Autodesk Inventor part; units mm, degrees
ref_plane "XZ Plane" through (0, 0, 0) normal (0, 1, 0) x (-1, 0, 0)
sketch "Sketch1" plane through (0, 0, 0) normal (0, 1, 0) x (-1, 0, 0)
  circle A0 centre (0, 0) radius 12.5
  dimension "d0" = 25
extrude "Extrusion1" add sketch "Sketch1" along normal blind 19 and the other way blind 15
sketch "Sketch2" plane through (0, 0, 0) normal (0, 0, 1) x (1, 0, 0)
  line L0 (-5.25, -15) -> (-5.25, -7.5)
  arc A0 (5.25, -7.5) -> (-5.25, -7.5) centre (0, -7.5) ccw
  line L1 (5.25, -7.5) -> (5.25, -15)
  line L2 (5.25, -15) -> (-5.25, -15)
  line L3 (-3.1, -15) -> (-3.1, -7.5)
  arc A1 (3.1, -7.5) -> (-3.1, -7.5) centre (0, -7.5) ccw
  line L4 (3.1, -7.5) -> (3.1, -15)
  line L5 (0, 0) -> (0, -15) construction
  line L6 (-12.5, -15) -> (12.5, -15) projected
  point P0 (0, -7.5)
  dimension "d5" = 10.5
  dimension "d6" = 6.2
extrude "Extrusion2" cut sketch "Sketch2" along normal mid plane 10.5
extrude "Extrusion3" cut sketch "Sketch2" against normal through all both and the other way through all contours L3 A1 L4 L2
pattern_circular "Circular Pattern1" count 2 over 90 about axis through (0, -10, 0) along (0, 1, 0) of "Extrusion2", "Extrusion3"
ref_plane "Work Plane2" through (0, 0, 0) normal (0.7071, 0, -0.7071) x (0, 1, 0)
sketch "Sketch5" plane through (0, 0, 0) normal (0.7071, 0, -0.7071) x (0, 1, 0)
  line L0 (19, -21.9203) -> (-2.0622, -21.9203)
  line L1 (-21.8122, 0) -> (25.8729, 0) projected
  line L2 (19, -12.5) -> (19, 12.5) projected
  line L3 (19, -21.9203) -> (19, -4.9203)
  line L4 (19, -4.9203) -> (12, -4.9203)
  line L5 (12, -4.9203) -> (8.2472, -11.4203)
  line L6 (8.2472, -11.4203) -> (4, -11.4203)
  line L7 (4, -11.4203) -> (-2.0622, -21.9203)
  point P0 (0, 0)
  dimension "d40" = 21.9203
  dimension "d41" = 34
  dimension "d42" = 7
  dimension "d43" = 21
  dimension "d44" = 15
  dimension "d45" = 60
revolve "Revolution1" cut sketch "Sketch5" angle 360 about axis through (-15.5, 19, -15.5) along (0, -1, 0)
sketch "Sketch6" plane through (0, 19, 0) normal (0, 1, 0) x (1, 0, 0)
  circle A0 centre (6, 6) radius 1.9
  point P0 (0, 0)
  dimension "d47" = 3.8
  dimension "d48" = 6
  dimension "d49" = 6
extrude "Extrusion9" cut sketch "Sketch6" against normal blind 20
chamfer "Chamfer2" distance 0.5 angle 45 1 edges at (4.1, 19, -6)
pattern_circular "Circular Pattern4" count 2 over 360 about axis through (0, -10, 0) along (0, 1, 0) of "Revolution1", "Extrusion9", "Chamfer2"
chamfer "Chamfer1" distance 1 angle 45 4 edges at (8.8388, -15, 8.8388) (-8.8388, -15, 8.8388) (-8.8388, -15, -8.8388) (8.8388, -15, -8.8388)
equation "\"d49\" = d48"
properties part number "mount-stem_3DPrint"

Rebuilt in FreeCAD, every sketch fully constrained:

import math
import FreeCAD as App
import Part
import Sketcher
from FreeCAD import Vector
Q = App.Units.Quantity


def edges_at(feature, points):
    """Names of the edges that pass closest to the given points."""
    edges = feature.Shape.Edges
    near = lambda p: min(range(len(edges)), key=lambda i: edges[i].distToShape(Part.Vertex(*p))[0])
    return sorted({f"Edge{near(p) + 1}" for p in points})

doc = App.newDocument("Part")
body = doc.addObject("PartDesign::Body", "Body")

# Sketch on XZ plane
sketch1 = body.newObject("Sketcher::SketchObject", "Sketch")
sketch1.AttachmentSupport = (doc.getObject("XZ_Plane"), [""])
sketch1.MapMode = "FlatFace"
sketch1.addGeometry(Part.Circle(Vector(0, 0, 0), Vector(0, 0, 1), 12), False)
sketch1.addConstraint([
    Sketcher.Constraint("Coincident", 0, 3, -1, 1),
    Sketcher.Constraint("Diameter", 0, 25.0),
])
pad1 = body.newObject("PartDesign::Pad", "Pad")
pad1.Profile = sketch1
pad1.Type = "TwoLengths"
pad1.Length = 19
pad1.Length2 = 15
pad1.Reversed = True

# Sketch on XY plane
sketch2 = body.newObject("Sketcher::SketchObject", "Sketch001")
sketch2.AttachmentSupport = (doc.getObject("XY_Plane"), [""])
sketch2.MapMode = "FlatFace"
sketch2.addGeometry([
    Part.LineSegment(Vector(-5, -8, 0), Vector(-5, -15, 0)),
    Part.LineSegment(Vector(-5, -15, 0), Vector(5, -15, 0)),
    Part.LineSegment(Vector(5, -15, 0), Vector(5, -8, 0)),
    Part.ArcOfCircle(Part.Circle(Vector(0, -8, 0), Vector(0, 0, 1), 5), math.radians(0), math.radians(180)),
], False)
sketch2.addConstraint([
    Sketcher.Constraint("Coincident", 0, 2, 1, 1),
    Sketcher.Constraint("Coincident", 1, 2, 2, 1),
    Sketcher.Constraint("Tangent", 2, 2, 3, 1),
    Sketcher.Constraint("Tangent", 3, 2, 0, 1),
    Sketcher.Constraint("Vertical", 0),
    Sketcher.Constraint("Horizontal", 1),
    Sketcher.Constraint("Vertical", 2),
    Sketcher.Constraint("PointOnObject", 3, 3, -2),
    Sketcher.Constraint("Radius", 3, 5.25),
    Sketcher.Constraint("DistanceY", 0, 2, 0, 1, 7.5),
    Sketcher.Constraint("DistanceY", 0, 2, -1, 1, 15.0),
])
pocket1 = body.newObject("PartDesign::Pocket", "Pocket")
pocket1.Profile = sketch2
pocket1.Length = 10.5
pocket1.Midplane = True

# Sketch on XY plane
sketch3 = body.newObject("Sketcher::SketchObject", "Sketch002")
sketch3.AttachmentSupport = (doc.getObject("XY_Plane"), [""])
sketch3.MapMode = "FlatFace"
sketch3.addGeometry([
    Part.LineSegment(Vector(-3.1, -7.5, 0), Vector(-3.1, -15, 0)),
    Part.LineSegment(Vector(-3.1, -15, 0), Vector(3.1, -15, 0)),
    Part.LineSegment(Vector(3.1, -15, 0), Vector(3.1, -7.5, 0)),
    Part.ArcOfCircle(Part.Circle(Vector(0, -7.5, 0), Vector(0, 0, 1), 3.1), math.radians(0), math.radians(180)),
], False)
sketch3.addConstraint([
    Sketcher.Constraint("Coincident", 0, 2, 1, 1),
    Sketcher.Constraint("Coincident", 1, 2, 2, 1),
    Sketcher.Constraint("Tangent", 2, 2, 3, 1),
    Sketcher.Constraint("Tangent", 3, 2, 0, 1),
    Sketcher.Constraint("Vertical", 0),
    Sketcher.Constraint("Horizontal", 1),
    Sketcher.Constraint("Vertical", 2),
    Sketcher.Constraint("PointOnObject", 3, 3, -2),
    Sketcher.Constraint("Radius", 3, 3.1),
    Sketcher.Constraint("DistanceY", 0, 2, 0, 1, 7.5),
    Sketcher.Constraint("DistanceY", 0, 2, -1, 1, 15.0),
])
pocket2 = body.newObject("PartDesign::Pocket", "Pocket001")
pocket2.Profile = sketch3
pocket2.Type = "ThroughAll"
pocket2.Midplane = True
doc.recompute()

polarpattern = body.newObject("PartDesign::PolarPattern", "PolarPattern")
polarpattern.Originals = [pocket1, pocket2]
polarpattern.Axis = (doc.getObject("Y_Axis"), [""])
polarpattern.Angle = 90
polarpattern.Occurrences = 2
body.Tip = polarpattern

# Sketch on an angled plane
sketch4 = body.newObject("Sketcher::SketchObject", "Sketch003")
sketch4.Placement = App.Placement(Vector(0, 0, 0), App.Rotation(Vector(0, 1, 0), Vector(0.707106781, 0, 0.707106781), Vector(0.707106781, 0, -0.707106781), "ZXY"))
sketch4.addGeometry([
    Part.LineSegment(Vector(-2.1, -21.9, 0), Vector(19, -21.9, 0)),  # 0
    Part.LineSegment(Vector(19, -21.9, 0), Vector(19, -4.9, 0)),  # 1
    Part.LineSegment(Vector(19, -4.9, 0), Vector(12, -4.9, 0)),  # 2
    Part.LineSegment(Vector(12, -4.9, 0), Vector(8.2, -11.4, 0)),  # 3
    Part.LineSegment(Vector(8.2, -11.4, 0), Vector(4, -11.4, 0)),  # 4
    Part.LineSegment(Vector(4, -11.4, 0), Vector(-2.1, -21.9, 0)),  # 5
], False)
sketch4.addGeometry(Part.LineSegment(Vector(19, -21.9, 0), Vector(-2.1, -21.9, 0)), True)  # axis
sketch4.addConstraint([
    Sketcher.Constraint("Coincident", 0, 2, 1, 1),
    Sketcher.Constraint("Coincident", 1, 2, 2, 1),
    Sketcher.Constraint("Coincident", 2, 2, 3, 1),
    Sketcher.Constraint("Coincident", 3, 2, 4, 1),
    Sketcher.Constraint("Coincident", 4, 2, 5, 1),
    Sketcher.Constraint("Coincident", 5, 2, 0, 1),
    Sketcher.Constraint("Horizontal", 0),
    Sketcher.Constraint("Vertical", 1),
    Sketcher.Constraint("Horizontal", 2),
    Sketcher.Constraint("Horizontal", 4),
    Sketcher.Constraint("Horizontal", 6),
    Sketcher.Constraint("Coincident", 6, 1, 0, 2),
    Sketcher.Constraint("Parallel", 3, 5),
    Sketcher.Constraint("Equal", 0, 6),
    Sketcher.Constraint("DistanceX", 2, 2, 2, 1, 7.0),
    Sketcher.Constraint("DistanceX", 4, 2, 1, 2, 15.0),
    Sketcher.Constraint("DistanceY", 1, 1, 1, 2, 17.0),
    Sketcher.Constraint("Angle", 3, Q("-120.0002 deg")),
    Sketcher.Constraint("DistanceX", -1, 1, 0, 2, 19.0),
    Sketcher.Constraint("DistanceY", 0, 2, -1, 1, 21.9203),
    Sketcher.Constraint("DistanceY", 3, 2, 2, 2, 6.5),
])
groove = body.newObject("PartDesign::Groove", "Groove")
groove.Profile = sketch4
groove.ReferenceAxis = (sketch4, ["Axis0"])
groove.Angle = 360

# Sketch on XZ plane
sketch5 = body.newObject("Sketcher::SketchObject", "Sketch004")
sketch5.AttachmentSupport = (doc.getObject("XZ_Plane"), [""])
sketch5.MapMode = "FlatFace"
sketch5.AttachmentOffset = App.Placement(Vector(0, 0, -19), App.Rotation())
sketch5.addGeometry(Part.Circle(Vector(6, -6, 0), Vector(0, 0, 1), 1.9), False)
sketch5.addConstraint([
    Sketcher.Constraint("Diameter", 0, 3.8),
    Sketcher.Constraint("DistanceX", -1, 1, 0, 3, 6.0),
    Sketcher.Constraint("DistanceY", 0, 3, -1, 1, 6.0),
])
pocket3 = body.newObject("PartDesign::Pocket", "Pocket002")
pocket3.Profile = sketch5
pocket3.Length = 20
pocket3.Reversed = True
doc.recompute()

chamfer = body.newObject("PartDesign::Chamfer", "Chamfer")
chamfer.Base = (pocket3, edges_at(pocket3, [(4.1, 19, -6)]))
chamfer.Size = 0.5
doc.recompute()

polarpattern2 = body.newObject("PartDesign::PolarPattern", "PolarPattern001")
polarpattern2.Originals = [groove, pocket3, chamfer]
polarpattern2.Axis = (doc.getObject("Y_Axis"), [""])
polarpattern2.Angle = 360
polarpattern2.Occurrences = 2
body.Tip = polarpattern2
doc.recompute()

chamfer2 = body.newObject("PartDesign::Chamfer", "Chamfer001")
chamfer2.Base = (polarpattern2, edges_at(polarpattern2, [
    (8.839, -15, 8.839),
    (-8.839, -15, 8.839),
    (-8.839, -15, -8.839),
    (8.839, -15, -8.839),
]))
chamfer2.Size = 1

doc.recompute()
